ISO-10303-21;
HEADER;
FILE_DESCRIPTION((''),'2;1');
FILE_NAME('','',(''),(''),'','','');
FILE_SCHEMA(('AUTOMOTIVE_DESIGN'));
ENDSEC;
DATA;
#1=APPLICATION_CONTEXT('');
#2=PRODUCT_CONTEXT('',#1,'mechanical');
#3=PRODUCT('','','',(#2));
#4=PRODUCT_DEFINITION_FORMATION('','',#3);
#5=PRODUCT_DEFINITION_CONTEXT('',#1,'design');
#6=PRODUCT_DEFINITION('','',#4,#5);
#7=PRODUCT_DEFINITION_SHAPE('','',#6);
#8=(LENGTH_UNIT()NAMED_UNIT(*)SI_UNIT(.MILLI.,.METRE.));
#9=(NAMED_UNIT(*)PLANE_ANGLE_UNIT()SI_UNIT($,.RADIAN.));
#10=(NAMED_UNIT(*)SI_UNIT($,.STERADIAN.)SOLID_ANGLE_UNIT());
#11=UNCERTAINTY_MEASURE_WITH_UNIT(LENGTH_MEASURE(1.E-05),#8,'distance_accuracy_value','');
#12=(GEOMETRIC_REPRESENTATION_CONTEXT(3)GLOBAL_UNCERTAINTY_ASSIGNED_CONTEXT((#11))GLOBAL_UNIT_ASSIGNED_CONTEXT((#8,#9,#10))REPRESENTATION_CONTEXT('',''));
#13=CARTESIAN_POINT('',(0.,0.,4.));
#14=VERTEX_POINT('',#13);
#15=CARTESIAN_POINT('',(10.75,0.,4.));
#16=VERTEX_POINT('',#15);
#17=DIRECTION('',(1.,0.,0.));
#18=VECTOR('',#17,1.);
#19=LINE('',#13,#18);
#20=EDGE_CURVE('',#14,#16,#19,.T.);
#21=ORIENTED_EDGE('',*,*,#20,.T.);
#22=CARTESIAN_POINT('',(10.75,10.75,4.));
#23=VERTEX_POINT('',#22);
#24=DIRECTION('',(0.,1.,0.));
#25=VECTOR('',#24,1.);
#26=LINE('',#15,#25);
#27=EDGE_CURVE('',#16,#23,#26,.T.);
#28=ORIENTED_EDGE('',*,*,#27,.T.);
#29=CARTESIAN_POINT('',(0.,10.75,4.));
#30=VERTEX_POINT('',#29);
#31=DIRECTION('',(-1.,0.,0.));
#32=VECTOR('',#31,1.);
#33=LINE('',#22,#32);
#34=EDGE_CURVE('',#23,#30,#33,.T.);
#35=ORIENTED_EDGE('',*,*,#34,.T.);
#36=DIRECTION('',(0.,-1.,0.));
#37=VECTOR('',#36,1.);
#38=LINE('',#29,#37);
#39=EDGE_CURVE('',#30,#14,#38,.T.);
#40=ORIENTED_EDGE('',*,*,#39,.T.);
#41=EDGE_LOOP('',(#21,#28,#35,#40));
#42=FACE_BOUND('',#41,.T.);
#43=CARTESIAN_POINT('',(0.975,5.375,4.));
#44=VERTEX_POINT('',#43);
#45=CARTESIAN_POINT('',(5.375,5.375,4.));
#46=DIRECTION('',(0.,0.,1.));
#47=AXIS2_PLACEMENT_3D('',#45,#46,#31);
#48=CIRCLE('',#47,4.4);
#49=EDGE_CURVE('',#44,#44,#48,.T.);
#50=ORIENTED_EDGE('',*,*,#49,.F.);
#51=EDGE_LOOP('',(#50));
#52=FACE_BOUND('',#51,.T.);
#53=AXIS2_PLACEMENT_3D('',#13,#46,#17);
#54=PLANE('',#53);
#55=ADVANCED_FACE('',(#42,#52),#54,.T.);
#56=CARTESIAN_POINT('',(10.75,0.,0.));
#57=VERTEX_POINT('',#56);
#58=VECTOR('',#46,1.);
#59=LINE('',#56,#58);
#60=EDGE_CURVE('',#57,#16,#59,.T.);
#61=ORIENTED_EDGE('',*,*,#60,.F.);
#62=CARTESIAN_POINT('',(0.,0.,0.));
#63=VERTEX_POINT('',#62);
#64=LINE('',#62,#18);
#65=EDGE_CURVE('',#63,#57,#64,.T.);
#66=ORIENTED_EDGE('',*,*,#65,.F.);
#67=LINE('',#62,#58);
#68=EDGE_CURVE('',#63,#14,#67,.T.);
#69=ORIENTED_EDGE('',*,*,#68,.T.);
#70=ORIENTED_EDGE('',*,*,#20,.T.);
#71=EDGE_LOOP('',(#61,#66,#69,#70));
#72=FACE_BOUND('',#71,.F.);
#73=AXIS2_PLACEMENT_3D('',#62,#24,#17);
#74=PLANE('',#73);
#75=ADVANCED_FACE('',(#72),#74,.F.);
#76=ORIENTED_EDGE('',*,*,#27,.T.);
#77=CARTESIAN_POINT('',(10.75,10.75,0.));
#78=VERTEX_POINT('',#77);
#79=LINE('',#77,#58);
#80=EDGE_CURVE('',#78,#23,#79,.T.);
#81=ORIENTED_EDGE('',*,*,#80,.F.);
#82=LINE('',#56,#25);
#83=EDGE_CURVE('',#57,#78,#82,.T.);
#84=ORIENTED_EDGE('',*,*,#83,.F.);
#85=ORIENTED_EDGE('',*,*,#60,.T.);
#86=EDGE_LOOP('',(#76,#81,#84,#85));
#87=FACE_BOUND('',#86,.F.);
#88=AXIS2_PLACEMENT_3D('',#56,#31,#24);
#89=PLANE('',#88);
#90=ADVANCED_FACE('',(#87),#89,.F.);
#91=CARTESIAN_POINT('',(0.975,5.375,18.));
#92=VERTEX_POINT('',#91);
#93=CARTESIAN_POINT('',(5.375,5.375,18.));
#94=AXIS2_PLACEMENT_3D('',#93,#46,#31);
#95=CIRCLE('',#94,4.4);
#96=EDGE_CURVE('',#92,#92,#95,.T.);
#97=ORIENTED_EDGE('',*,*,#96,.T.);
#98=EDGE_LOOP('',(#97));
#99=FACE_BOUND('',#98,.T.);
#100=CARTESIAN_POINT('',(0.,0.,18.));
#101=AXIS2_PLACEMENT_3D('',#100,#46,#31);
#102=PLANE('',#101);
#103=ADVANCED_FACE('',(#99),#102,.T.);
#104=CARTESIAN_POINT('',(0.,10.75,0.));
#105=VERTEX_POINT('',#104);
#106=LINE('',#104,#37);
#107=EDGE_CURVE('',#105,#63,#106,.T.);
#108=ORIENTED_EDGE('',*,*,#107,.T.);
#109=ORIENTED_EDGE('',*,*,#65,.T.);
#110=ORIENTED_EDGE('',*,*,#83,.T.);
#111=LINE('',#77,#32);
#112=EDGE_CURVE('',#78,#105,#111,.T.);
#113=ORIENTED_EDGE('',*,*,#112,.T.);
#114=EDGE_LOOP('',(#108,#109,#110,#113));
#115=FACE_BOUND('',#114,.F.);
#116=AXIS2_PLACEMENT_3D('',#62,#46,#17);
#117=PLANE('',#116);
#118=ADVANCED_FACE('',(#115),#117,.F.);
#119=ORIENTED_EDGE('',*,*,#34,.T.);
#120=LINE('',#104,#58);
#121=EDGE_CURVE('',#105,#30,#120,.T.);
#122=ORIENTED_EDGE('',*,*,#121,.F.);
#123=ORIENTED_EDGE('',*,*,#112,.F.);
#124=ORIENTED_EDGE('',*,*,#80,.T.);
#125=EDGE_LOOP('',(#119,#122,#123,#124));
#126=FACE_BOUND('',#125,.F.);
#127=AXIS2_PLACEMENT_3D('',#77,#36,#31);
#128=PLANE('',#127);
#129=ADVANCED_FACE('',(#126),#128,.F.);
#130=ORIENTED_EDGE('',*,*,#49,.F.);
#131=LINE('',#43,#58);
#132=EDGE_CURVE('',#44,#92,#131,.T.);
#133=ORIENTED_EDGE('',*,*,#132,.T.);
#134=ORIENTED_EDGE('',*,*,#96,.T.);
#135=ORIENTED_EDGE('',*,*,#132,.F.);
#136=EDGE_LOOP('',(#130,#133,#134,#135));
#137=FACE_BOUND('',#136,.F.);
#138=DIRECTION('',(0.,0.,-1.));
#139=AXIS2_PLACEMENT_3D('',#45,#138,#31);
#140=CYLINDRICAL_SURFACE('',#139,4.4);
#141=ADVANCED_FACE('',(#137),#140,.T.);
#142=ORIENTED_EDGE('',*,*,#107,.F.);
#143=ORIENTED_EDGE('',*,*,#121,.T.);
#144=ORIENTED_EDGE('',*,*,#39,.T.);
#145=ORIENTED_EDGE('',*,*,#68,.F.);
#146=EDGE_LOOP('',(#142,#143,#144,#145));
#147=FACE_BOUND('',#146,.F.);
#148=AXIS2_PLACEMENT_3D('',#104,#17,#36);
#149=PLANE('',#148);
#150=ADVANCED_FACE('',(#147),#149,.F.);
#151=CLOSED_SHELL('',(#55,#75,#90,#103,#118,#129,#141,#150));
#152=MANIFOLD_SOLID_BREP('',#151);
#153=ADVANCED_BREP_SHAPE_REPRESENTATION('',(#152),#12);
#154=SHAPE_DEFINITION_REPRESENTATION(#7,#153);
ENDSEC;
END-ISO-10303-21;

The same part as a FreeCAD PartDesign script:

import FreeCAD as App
import Part
import Sketcher
Q = App.Units.Quantity

doc = App.newDocument("Part")
body = doc.addObject("PartDesign::Body", "Body")

sketch1 = doc.addObject("Sketcher::SketchObject", "Sketch")
body.addObject(sketch1)
sketch1.AttachmentSupport = (doc.XY_Plane, [""])
sketch1.MapMode = "FlatFace"
sketch1.addGeometry([
    Part.LineSegment(App.Vector(0, 11, 0), App.Vector(0, 0, 0)),
    Part.LineSegment(App.Vector(0, 0, 0), App.Vector(11, 0, 0)),
    Part.LineSegment(App.Vector(11, 0, 0), App.Vector(11, 11, 0)),
    Part.LineSegment(App.Vector(11, 11, 0), App.Vector(0, 11, 0)),
], False)
sketch1.addConstraint([
    Sketcher.Constraint("Coincident", 0, 2, 1, 1),
    Sketcher.Constraint("Coincident", 1, 2, 2, 1),
    Sketcher.Constraint("Coincident", 2, 2, 3, 1),
    Sketcher.Constraint("Coincident", 3, 2, 0, 1),
    Sketcher.Constraint("Vertical", 0),
    Sketcher.Constraint("Horizontal", 1),
    Sketcher.Constraint("Vertical", 2),
    Sketcher.Constraint("Horizontal", 3),
    Sketcher.Constraint("Coincident", 0, 2, -1, 1),
    Sketcher.Constraint("Equal", 3, 0),
    Sketcher.Constraint("DistanceX", 1, 1, 1, 2, Q("10.75 mm")),
])
pad1 = doc.addObject("PartDesign::Pad", "Pad")
body.addObject(pad1)
pad1.Profile = sketch1
pad1.Length = 4

sketch2 = doc.addObject("Sketcher::SketchObject", "Sketch001")
body.addObject(sketch2)
sketch2.AttachmentSupport = (doc.XY_Plane, [""])
sketch2.MapMode = "FlatFace"
sketch2.AttachmentOffset = App.Placement(App.Vector(0, 0, 4), App.Rotation())
sketch2.addGeometry(Part.Circle(App.Vector(5.4, 5.4, 0), App.Vector(0, 0, 1), 4.4), False)
sketch2.addConstraint([
    Sketcher.Constraint("Diameter", 0, Q("8.8 mm")),
    Sketcher.Constraint("DistanceX", -1, 1, 0, 3, Q("5.375 mm")),
    Sketcher.Constraint("DistanceY", -1, 1, 0, 3, Q("5.375 mm")),
])
pad2 = doc.addObject("PartDesign::Pad", "Pad001")
body.addObject(pad2)
pad2.Profile = sketch2
pad2.Length = 14

doc.recompute()
